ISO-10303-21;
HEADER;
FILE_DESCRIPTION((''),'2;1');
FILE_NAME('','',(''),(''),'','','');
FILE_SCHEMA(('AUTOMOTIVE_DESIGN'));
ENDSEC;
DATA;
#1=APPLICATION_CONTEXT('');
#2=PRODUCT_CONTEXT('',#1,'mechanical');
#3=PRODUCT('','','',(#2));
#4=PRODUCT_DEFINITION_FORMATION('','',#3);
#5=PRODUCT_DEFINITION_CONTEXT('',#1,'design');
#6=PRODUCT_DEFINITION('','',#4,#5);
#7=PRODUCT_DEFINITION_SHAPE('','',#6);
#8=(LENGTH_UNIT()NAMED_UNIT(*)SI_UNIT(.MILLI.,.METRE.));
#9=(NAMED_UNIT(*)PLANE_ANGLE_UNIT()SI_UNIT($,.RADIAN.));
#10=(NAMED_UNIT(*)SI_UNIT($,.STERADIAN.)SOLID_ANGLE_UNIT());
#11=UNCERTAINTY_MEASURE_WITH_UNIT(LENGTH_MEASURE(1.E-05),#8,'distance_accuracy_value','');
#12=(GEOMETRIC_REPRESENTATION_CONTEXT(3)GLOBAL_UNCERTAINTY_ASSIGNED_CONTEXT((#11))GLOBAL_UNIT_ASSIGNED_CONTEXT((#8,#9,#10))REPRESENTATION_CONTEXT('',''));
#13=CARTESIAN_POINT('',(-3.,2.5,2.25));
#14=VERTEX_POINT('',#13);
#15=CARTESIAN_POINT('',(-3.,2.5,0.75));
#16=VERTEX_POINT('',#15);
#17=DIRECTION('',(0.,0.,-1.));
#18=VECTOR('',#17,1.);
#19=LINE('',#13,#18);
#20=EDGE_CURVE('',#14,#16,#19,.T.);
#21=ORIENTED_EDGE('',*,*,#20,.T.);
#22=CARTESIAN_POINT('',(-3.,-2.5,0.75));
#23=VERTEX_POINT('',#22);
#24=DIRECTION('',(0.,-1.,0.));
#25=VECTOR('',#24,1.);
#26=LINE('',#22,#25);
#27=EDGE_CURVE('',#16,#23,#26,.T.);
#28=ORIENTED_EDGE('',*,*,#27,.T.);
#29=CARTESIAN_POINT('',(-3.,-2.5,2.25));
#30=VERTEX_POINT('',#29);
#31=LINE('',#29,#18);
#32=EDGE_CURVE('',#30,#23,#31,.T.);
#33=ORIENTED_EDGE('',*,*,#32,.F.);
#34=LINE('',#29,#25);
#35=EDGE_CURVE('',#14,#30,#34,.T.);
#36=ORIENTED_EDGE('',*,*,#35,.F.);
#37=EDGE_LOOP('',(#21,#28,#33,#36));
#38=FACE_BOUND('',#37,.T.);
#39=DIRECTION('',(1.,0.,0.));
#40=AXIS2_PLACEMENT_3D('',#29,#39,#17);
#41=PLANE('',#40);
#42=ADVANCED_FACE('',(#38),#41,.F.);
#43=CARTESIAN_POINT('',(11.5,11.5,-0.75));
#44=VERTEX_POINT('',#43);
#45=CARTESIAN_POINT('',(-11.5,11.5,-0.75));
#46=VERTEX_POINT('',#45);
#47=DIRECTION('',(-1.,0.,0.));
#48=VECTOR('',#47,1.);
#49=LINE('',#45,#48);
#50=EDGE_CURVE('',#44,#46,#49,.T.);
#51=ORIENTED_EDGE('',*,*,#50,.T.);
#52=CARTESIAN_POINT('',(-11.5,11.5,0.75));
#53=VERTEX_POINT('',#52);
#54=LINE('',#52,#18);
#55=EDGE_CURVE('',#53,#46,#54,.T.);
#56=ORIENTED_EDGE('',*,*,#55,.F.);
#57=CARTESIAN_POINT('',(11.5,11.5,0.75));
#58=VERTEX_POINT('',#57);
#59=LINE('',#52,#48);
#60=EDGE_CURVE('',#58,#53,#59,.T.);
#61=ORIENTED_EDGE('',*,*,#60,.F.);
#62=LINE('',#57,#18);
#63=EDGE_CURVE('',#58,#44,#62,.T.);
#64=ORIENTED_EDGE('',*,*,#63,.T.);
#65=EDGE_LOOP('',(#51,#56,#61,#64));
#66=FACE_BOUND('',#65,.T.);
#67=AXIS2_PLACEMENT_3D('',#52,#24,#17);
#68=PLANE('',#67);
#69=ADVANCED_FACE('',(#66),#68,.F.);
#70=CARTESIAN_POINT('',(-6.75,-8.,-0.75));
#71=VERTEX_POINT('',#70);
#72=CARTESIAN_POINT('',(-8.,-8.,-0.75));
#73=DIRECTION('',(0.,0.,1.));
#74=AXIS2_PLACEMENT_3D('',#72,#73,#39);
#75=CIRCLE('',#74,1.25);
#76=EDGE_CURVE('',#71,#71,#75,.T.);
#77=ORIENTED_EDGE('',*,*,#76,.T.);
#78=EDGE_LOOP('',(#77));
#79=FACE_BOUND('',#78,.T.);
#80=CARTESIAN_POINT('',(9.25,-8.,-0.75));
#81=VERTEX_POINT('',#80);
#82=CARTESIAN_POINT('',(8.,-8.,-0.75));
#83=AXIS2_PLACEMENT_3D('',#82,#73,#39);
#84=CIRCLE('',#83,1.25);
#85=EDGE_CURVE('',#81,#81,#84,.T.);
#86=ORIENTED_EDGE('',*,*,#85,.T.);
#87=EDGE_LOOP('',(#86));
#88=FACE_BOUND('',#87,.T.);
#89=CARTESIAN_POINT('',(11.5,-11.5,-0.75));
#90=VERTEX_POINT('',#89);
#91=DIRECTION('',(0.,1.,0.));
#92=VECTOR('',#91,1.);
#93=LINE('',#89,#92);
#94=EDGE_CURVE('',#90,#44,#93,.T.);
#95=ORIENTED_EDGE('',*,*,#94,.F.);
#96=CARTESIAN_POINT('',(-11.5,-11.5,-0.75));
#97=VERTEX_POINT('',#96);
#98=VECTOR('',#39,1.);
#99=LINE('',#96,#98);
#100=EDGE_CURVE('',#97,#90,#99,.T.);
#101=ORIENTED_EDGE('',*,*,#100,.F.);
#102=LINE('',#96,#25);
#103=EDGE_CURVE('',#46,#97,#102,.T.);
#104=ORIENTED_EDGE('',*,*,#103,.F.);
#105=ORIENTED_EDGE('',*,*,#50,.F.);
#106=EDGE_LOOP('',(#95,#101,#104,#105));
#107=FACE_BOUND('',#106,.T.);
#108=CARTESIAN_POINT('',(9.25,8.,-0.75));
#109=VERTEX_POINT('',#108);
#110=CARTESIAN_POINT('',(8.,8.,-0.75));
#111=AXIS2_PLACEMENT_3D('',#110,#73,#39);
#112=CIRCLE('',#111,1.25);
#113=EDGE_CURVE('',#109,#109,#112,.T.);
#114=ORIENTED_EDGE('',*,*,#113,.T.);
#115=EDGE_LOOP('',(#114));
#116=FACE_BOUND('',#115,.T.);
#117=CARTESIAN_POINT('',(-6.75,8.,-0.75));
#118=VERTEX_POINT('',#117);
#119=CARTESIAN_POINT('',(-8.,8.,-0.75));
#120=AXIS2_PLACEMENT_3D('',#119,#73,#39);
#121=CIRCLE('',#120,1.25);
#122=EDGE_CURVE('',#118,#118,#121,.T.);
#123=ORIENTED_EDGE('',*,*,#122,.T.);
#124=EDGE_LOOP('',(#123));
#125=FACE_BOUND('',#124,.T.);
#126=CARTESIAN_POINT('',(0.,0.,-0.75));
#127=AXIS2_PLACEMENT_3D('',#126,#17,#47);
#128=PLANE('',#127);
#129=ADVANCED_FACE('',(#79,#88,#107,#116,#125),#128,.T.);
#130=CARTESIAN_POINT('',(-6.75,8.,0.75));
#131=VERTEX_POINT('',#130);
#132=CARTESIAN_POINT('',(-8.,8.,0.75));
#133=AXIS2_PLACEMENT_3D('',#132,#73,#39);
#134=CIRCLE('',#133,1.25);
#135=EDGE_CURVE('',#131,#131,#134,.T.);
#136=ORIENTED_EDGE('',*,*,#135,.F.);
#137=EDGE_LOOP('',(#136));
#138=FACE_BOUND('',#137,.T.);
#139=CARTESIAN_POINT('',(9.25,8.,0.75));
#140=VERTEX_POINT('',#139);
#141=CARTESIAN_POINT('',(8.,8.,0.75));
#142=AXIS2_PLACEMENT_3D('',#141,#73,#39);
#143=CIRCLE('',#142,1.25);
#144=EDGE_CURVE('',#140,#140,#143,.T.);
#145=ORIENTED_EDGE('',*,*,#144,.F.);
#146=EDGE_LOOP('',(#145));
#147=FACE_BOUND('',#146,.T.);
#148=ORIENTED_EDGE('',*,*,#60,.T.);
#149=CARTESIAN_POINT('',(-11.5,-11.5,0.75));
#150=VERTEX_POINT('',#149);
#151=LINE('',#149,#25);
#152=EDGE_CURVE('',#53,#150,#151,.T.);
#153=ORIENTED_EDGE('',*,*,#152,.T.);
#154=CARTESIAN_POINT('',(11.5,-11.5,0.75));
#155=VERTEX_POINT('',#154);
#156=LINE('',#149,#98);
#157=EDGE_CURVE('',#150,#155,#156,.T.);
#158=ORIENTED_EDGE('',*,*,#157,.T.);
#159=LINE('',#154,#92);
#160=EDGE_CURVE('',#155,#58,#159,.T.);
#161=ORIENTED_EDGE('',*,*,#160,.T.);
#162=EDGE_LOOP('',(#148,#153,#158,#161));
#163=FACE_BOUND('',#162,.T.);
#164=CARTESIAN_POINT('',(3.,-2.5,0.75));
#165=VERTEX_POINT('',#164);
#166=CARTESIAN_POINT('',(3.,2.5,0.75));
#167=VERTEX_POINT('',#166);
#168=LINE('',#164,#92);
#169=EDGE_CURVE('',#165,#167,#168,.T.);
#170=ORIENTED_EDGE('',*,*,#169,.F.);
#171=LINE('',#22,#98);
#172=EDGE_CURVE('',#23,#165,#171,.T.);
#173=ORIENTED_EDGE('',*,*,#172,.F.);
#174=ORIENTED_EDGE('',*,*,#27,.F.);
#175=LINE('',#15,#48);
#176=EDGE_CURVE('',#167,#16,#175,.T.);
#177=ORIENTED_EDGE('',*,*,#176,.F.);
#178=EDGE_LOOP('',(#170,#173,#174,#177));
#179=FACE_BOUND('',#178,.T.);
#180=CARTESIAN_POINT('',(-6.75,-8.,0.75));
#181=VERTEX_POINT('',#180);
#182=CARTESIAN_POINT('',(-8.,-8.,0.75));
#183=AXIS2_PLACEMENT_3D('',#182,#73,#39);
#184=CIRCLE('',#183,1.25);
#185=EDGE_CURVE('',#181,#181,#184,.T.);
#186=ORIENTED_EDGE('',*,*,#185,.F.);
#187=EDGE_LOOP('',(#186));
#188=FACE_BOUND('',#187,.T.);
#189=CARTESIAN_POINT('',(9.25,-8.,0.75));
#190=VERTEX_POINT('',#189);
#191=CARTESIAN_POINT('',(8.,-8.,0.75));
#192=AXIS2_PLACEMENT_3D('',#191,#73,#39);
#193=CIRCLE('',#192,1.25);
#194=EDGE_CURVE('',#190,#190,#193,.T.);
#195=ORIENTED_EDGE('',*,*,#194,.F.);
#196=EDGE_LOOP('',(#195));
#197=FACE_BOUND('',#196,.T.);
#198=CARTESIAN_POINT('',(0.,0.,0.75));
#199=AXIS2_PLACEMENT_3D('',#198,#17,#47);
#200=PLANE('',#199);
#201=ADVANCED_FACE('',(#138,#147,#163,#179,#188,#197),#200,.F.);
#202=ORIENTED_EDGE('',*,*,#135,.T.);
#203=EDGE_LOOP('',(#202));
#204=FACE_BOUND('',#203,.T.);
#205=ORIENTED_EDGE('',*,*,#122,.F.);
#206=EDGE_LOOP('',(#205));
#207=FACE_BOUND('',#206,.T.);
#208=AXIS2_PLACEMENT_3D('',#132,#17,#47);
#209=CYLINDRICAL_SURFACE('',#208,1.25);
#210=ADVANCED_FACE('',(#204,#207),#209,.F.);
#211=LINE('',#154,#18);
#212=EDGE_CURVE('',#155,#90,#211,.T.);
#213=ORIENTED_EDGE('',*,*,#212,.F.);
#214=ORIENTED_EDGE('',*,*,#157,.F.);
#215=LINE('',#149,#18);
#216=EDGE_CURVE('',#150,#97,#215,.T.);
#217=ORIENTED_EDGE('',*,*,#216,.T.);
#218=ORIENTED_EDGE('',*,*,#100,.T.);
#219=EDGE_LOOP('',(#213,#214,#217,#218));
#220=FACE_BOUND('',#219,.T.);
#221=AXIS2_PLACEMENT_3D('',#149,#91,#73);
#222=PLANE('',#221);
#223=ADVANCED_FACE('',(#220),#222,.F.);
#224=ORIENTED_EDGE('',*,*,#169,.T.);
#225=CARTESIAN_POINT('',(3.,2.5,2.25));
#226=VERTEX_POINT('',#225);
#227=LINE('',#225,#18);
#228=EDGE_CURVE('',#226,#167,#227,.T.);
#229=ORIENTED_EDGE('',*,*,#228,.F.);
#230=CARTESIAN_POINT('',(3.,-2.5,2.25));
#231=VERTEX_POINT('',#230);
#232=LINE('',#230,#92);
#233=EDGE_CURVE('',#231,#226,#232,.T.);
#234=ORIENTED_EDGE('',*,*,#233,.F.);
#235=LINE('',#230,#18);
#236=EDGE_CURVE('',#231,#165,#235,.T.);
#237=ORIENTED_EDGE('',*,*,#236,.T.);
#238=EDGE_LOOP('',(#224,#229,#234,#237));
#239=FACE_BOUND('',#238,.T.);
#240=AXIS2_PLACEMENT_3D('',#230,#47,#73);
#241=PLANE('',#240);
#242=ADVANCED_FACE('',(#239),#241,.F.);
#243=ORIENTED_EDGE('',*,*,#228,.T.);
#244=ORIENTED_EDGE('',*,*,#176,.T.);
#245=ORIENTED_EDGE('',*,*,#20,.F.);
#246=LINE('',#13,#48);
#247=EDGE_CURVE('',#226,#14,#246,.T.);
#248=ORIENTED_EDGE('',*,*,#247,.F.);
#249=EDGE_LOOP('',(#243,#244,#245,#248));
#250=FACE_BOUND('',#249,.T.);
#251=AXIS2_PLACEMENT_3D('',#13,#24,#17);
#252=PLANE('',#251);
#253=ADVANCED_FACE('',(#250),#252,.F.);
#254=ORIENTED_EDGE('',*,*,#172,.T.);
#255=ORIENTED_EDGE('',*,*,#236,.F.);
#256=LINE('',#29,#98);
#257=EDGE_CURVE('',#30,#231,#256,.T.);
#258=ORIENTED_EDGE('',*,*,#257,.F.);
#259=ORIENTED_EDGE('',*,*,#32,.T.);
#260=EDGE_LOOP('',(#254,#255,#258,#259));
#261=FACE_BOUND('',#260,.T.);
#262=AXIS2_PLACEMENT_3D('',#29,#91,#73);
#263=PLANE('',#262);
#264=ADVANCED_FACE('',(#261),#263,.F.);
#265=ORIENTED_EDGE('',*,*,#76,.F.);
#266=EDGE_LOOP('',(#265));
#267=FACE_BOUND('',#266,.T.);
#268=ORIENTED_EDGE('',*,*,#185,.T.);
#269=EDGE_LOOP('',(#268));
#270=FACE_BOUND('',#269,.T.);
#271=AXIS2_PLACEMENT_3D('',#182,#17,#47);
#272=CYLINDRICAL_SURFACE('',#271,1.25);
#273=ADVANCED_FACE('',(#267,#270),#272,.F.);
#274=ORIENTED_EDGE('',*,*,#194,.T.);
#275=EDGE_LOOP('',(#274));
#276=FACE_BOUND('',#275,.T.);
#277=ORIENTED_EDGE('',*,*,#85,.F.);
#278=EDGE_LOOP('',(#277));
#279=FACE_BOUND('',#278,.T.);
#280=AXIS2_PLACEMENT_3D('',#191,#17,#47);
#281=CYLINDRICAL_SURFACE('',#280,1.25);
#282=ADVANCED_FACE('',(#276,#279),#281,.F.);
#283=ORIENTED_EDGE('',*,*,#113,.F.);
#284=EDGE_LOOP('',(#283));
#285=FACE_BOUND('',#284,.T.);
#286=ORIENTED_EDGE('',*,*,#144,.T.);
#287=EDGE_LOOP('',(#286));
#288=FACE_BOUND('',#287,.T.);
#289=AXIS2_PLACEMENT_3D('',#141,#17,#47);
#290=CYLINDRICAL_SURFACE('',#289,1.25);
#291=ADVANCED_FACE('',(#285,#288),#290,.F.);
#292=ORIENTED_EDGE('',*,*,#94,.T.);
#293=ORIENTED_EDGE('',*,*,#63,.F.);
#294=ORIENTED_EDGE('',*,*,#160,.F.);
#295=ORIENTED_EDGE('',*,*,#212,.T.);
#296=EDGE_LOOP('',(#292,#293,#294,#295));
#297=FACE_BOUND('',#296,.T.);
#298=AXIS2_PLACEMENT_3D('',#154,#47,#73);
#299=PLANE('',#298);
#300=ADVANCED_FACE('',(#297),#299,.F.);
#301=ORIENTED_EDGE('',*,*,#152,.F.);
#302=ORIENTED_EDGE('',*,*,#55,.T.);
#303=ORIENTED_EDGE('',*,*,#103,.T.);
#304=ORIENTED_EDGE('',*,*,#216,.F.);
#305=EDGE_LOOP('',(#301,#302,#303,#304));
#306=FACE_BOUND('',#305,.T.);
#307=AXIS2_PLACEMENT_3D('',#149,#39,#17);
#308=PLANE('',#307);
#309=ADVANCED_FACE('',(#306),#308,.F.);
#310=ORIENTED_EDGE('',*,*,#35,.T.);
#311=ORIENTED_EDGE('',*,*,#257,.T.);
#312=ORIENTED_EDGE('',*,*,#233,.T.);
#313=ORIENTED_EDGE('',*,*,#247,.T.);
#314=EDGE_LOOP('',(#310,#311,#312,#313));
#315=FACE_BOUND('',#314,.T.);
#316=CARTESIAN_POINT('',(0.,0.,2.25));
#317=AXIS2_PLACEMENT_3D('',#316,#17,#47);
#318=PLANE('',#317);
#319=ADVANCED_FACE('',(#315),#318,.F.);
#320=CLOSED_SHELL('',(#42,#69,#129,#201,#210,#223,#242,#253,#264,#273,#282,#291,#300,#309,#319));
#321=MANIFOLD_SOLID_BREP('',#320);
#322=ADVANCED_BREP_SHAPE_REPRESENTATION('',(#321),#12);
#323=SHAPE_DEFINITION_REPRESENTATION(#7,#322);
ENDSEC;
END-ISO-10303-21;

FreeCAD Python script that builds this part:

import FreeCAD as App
import Part
import Sketcher
from FreeCAD import Vector
Q = App.Units.Quantity


def add_polygon(sketch, points):
    """Adds a closed chain of lines whose ends are joined by coincident constraints."""
    first, n = sketch.GeometryCount, len(points)
    for a, b in zip(points, points[1:] + points[:1]):
        sketch.addGeometry(Part.LineSegment(App.Vector(*a, 0), App.Vector(*b, 0)), False)
    for i in range(n):
        sketch.addConstraint(Sketcher.Constraint("Coincident", first + i, 2, first + (i + 1) % n, 1))

doc = App.newDocument("Part")
body = doc.addObject("PartDesign::Body", "Body")

# Sketch on XY plane
sketch1 = body.newObject("Sketcher::SketchObject", "Sketch")
sketch1.AttachmentSupport = (doc.getObject("XY_Plane"), [""])
sketch1.MapMode = "FlatFace"
add_polygon(sketch1, [(-11.5, 11.5), (-11.5, -11.5), (11.5, -11.5), (11.5, 11.5)])  # lines 0-3
sketch1.addGeometry(Part.Circle(Vector(-8, -8, 0), Vector(0, 0, 1), 1.25), False)  # 4
sketch1.addGeometry(Part.Circle(Vector(8, -8, 0), Vector(0, 0, 1), 1.25), False)  # 5
sketch1.addGeometry(Part.Circle(Vector(-8, 8, 0), Vector(0, 0, 1), 1.25), False)  # 6
sketch1.addGeometry(Part.Circle(Vector(8, 8, 0), Vector(0, 0, 1), 1.25), False)  # 7
sketch1.addConstraint([
    Sketcher.Constraint("Vertical", 0),
    Sketcher.Constraint("Horizontal", 1),
    Sketcher.Constraint("Vertical", 2),
    Sketcher.Constraint("Horizontal", 3),
    Sketcher.Constraint("Equal", 4, 5),
    Sketcher.Constraint("Equal", 5, 6),
    Sketcher.Constraint("Equal", 6, 7),
    Sketcher.Constraint("Symmetric", 5, 3, 6, 3, -1, 1),
    Sketcher.Constraint("Symmetric", 4, 3, 7, 3, -1, 1),
    Sketcher.Constraint("Symmetric", 0, 2, 2, 2, -1, 1),
    Sketcher.Constraint("Symmetric", 4, 3, 5, 3, -2),
    Sketcher.Constraint("Equal", 3, 0),
    Sketcher.Constraint("Diameter", 4, Q("2.5 mm")),
    Sketcher.Constraint("DistanceX", 1, 1, 1, 2, Q("23 mm")),
    Sketcher.Constraint("DistanceX", 4, 3, -1, 1, Q("8 mm")),
    Sketcher.Constraint("DistanceY", 4, 3, -1, 1, Q("8 mm")),
])
pad1 = body.newObject("PartDesign::Pad", "Pad")
pad1.Profile = sketch1
pad1.Length = 1.5
pad1.Midplane = True

# Sketch on XY plane
sketch2 = body.newObject("Sketcher::SketchObject", "Sketch001")
sketch2.AttachmentSupport = (doc.getObject("XY_Plane"), [""])
sketch2.MapMode = "FlatFace"
sketch2.AttachmentOffset = App.Placement(Vector(0, 0, 0.75), App.Rotation())
add_polygon(sketch2, [(-3, 2.5), (-3, -2.5), (3, -2.5), (3, 2.5)])  # lines 0-3
sketch2.addConstraint([
    Sketcher.Constraint("Vertical", 0),
    Sketcher.Constraint("Horizontal", 1),
    Sketcher.Constraint("Vertical", 2),
    Sketcher.Constraint("Horizontal", 3),
    Sketcher.Constraint("Symmetric", 0, 2, 2, 2, -1, 1),
    Sketcher.Constraint("DistanceX", 1, 1, 1, 2, Q("6 mm")),
    Sketcher.Constraint("DistanceY", 0, 2, 0, 1, Q("5 mm")),
])
pad2 = body.newObject("PartDesign::Pad", "Pad001")
pad2.Profile = sketch2
pad2.Length = 1.5

doc.recompute()
